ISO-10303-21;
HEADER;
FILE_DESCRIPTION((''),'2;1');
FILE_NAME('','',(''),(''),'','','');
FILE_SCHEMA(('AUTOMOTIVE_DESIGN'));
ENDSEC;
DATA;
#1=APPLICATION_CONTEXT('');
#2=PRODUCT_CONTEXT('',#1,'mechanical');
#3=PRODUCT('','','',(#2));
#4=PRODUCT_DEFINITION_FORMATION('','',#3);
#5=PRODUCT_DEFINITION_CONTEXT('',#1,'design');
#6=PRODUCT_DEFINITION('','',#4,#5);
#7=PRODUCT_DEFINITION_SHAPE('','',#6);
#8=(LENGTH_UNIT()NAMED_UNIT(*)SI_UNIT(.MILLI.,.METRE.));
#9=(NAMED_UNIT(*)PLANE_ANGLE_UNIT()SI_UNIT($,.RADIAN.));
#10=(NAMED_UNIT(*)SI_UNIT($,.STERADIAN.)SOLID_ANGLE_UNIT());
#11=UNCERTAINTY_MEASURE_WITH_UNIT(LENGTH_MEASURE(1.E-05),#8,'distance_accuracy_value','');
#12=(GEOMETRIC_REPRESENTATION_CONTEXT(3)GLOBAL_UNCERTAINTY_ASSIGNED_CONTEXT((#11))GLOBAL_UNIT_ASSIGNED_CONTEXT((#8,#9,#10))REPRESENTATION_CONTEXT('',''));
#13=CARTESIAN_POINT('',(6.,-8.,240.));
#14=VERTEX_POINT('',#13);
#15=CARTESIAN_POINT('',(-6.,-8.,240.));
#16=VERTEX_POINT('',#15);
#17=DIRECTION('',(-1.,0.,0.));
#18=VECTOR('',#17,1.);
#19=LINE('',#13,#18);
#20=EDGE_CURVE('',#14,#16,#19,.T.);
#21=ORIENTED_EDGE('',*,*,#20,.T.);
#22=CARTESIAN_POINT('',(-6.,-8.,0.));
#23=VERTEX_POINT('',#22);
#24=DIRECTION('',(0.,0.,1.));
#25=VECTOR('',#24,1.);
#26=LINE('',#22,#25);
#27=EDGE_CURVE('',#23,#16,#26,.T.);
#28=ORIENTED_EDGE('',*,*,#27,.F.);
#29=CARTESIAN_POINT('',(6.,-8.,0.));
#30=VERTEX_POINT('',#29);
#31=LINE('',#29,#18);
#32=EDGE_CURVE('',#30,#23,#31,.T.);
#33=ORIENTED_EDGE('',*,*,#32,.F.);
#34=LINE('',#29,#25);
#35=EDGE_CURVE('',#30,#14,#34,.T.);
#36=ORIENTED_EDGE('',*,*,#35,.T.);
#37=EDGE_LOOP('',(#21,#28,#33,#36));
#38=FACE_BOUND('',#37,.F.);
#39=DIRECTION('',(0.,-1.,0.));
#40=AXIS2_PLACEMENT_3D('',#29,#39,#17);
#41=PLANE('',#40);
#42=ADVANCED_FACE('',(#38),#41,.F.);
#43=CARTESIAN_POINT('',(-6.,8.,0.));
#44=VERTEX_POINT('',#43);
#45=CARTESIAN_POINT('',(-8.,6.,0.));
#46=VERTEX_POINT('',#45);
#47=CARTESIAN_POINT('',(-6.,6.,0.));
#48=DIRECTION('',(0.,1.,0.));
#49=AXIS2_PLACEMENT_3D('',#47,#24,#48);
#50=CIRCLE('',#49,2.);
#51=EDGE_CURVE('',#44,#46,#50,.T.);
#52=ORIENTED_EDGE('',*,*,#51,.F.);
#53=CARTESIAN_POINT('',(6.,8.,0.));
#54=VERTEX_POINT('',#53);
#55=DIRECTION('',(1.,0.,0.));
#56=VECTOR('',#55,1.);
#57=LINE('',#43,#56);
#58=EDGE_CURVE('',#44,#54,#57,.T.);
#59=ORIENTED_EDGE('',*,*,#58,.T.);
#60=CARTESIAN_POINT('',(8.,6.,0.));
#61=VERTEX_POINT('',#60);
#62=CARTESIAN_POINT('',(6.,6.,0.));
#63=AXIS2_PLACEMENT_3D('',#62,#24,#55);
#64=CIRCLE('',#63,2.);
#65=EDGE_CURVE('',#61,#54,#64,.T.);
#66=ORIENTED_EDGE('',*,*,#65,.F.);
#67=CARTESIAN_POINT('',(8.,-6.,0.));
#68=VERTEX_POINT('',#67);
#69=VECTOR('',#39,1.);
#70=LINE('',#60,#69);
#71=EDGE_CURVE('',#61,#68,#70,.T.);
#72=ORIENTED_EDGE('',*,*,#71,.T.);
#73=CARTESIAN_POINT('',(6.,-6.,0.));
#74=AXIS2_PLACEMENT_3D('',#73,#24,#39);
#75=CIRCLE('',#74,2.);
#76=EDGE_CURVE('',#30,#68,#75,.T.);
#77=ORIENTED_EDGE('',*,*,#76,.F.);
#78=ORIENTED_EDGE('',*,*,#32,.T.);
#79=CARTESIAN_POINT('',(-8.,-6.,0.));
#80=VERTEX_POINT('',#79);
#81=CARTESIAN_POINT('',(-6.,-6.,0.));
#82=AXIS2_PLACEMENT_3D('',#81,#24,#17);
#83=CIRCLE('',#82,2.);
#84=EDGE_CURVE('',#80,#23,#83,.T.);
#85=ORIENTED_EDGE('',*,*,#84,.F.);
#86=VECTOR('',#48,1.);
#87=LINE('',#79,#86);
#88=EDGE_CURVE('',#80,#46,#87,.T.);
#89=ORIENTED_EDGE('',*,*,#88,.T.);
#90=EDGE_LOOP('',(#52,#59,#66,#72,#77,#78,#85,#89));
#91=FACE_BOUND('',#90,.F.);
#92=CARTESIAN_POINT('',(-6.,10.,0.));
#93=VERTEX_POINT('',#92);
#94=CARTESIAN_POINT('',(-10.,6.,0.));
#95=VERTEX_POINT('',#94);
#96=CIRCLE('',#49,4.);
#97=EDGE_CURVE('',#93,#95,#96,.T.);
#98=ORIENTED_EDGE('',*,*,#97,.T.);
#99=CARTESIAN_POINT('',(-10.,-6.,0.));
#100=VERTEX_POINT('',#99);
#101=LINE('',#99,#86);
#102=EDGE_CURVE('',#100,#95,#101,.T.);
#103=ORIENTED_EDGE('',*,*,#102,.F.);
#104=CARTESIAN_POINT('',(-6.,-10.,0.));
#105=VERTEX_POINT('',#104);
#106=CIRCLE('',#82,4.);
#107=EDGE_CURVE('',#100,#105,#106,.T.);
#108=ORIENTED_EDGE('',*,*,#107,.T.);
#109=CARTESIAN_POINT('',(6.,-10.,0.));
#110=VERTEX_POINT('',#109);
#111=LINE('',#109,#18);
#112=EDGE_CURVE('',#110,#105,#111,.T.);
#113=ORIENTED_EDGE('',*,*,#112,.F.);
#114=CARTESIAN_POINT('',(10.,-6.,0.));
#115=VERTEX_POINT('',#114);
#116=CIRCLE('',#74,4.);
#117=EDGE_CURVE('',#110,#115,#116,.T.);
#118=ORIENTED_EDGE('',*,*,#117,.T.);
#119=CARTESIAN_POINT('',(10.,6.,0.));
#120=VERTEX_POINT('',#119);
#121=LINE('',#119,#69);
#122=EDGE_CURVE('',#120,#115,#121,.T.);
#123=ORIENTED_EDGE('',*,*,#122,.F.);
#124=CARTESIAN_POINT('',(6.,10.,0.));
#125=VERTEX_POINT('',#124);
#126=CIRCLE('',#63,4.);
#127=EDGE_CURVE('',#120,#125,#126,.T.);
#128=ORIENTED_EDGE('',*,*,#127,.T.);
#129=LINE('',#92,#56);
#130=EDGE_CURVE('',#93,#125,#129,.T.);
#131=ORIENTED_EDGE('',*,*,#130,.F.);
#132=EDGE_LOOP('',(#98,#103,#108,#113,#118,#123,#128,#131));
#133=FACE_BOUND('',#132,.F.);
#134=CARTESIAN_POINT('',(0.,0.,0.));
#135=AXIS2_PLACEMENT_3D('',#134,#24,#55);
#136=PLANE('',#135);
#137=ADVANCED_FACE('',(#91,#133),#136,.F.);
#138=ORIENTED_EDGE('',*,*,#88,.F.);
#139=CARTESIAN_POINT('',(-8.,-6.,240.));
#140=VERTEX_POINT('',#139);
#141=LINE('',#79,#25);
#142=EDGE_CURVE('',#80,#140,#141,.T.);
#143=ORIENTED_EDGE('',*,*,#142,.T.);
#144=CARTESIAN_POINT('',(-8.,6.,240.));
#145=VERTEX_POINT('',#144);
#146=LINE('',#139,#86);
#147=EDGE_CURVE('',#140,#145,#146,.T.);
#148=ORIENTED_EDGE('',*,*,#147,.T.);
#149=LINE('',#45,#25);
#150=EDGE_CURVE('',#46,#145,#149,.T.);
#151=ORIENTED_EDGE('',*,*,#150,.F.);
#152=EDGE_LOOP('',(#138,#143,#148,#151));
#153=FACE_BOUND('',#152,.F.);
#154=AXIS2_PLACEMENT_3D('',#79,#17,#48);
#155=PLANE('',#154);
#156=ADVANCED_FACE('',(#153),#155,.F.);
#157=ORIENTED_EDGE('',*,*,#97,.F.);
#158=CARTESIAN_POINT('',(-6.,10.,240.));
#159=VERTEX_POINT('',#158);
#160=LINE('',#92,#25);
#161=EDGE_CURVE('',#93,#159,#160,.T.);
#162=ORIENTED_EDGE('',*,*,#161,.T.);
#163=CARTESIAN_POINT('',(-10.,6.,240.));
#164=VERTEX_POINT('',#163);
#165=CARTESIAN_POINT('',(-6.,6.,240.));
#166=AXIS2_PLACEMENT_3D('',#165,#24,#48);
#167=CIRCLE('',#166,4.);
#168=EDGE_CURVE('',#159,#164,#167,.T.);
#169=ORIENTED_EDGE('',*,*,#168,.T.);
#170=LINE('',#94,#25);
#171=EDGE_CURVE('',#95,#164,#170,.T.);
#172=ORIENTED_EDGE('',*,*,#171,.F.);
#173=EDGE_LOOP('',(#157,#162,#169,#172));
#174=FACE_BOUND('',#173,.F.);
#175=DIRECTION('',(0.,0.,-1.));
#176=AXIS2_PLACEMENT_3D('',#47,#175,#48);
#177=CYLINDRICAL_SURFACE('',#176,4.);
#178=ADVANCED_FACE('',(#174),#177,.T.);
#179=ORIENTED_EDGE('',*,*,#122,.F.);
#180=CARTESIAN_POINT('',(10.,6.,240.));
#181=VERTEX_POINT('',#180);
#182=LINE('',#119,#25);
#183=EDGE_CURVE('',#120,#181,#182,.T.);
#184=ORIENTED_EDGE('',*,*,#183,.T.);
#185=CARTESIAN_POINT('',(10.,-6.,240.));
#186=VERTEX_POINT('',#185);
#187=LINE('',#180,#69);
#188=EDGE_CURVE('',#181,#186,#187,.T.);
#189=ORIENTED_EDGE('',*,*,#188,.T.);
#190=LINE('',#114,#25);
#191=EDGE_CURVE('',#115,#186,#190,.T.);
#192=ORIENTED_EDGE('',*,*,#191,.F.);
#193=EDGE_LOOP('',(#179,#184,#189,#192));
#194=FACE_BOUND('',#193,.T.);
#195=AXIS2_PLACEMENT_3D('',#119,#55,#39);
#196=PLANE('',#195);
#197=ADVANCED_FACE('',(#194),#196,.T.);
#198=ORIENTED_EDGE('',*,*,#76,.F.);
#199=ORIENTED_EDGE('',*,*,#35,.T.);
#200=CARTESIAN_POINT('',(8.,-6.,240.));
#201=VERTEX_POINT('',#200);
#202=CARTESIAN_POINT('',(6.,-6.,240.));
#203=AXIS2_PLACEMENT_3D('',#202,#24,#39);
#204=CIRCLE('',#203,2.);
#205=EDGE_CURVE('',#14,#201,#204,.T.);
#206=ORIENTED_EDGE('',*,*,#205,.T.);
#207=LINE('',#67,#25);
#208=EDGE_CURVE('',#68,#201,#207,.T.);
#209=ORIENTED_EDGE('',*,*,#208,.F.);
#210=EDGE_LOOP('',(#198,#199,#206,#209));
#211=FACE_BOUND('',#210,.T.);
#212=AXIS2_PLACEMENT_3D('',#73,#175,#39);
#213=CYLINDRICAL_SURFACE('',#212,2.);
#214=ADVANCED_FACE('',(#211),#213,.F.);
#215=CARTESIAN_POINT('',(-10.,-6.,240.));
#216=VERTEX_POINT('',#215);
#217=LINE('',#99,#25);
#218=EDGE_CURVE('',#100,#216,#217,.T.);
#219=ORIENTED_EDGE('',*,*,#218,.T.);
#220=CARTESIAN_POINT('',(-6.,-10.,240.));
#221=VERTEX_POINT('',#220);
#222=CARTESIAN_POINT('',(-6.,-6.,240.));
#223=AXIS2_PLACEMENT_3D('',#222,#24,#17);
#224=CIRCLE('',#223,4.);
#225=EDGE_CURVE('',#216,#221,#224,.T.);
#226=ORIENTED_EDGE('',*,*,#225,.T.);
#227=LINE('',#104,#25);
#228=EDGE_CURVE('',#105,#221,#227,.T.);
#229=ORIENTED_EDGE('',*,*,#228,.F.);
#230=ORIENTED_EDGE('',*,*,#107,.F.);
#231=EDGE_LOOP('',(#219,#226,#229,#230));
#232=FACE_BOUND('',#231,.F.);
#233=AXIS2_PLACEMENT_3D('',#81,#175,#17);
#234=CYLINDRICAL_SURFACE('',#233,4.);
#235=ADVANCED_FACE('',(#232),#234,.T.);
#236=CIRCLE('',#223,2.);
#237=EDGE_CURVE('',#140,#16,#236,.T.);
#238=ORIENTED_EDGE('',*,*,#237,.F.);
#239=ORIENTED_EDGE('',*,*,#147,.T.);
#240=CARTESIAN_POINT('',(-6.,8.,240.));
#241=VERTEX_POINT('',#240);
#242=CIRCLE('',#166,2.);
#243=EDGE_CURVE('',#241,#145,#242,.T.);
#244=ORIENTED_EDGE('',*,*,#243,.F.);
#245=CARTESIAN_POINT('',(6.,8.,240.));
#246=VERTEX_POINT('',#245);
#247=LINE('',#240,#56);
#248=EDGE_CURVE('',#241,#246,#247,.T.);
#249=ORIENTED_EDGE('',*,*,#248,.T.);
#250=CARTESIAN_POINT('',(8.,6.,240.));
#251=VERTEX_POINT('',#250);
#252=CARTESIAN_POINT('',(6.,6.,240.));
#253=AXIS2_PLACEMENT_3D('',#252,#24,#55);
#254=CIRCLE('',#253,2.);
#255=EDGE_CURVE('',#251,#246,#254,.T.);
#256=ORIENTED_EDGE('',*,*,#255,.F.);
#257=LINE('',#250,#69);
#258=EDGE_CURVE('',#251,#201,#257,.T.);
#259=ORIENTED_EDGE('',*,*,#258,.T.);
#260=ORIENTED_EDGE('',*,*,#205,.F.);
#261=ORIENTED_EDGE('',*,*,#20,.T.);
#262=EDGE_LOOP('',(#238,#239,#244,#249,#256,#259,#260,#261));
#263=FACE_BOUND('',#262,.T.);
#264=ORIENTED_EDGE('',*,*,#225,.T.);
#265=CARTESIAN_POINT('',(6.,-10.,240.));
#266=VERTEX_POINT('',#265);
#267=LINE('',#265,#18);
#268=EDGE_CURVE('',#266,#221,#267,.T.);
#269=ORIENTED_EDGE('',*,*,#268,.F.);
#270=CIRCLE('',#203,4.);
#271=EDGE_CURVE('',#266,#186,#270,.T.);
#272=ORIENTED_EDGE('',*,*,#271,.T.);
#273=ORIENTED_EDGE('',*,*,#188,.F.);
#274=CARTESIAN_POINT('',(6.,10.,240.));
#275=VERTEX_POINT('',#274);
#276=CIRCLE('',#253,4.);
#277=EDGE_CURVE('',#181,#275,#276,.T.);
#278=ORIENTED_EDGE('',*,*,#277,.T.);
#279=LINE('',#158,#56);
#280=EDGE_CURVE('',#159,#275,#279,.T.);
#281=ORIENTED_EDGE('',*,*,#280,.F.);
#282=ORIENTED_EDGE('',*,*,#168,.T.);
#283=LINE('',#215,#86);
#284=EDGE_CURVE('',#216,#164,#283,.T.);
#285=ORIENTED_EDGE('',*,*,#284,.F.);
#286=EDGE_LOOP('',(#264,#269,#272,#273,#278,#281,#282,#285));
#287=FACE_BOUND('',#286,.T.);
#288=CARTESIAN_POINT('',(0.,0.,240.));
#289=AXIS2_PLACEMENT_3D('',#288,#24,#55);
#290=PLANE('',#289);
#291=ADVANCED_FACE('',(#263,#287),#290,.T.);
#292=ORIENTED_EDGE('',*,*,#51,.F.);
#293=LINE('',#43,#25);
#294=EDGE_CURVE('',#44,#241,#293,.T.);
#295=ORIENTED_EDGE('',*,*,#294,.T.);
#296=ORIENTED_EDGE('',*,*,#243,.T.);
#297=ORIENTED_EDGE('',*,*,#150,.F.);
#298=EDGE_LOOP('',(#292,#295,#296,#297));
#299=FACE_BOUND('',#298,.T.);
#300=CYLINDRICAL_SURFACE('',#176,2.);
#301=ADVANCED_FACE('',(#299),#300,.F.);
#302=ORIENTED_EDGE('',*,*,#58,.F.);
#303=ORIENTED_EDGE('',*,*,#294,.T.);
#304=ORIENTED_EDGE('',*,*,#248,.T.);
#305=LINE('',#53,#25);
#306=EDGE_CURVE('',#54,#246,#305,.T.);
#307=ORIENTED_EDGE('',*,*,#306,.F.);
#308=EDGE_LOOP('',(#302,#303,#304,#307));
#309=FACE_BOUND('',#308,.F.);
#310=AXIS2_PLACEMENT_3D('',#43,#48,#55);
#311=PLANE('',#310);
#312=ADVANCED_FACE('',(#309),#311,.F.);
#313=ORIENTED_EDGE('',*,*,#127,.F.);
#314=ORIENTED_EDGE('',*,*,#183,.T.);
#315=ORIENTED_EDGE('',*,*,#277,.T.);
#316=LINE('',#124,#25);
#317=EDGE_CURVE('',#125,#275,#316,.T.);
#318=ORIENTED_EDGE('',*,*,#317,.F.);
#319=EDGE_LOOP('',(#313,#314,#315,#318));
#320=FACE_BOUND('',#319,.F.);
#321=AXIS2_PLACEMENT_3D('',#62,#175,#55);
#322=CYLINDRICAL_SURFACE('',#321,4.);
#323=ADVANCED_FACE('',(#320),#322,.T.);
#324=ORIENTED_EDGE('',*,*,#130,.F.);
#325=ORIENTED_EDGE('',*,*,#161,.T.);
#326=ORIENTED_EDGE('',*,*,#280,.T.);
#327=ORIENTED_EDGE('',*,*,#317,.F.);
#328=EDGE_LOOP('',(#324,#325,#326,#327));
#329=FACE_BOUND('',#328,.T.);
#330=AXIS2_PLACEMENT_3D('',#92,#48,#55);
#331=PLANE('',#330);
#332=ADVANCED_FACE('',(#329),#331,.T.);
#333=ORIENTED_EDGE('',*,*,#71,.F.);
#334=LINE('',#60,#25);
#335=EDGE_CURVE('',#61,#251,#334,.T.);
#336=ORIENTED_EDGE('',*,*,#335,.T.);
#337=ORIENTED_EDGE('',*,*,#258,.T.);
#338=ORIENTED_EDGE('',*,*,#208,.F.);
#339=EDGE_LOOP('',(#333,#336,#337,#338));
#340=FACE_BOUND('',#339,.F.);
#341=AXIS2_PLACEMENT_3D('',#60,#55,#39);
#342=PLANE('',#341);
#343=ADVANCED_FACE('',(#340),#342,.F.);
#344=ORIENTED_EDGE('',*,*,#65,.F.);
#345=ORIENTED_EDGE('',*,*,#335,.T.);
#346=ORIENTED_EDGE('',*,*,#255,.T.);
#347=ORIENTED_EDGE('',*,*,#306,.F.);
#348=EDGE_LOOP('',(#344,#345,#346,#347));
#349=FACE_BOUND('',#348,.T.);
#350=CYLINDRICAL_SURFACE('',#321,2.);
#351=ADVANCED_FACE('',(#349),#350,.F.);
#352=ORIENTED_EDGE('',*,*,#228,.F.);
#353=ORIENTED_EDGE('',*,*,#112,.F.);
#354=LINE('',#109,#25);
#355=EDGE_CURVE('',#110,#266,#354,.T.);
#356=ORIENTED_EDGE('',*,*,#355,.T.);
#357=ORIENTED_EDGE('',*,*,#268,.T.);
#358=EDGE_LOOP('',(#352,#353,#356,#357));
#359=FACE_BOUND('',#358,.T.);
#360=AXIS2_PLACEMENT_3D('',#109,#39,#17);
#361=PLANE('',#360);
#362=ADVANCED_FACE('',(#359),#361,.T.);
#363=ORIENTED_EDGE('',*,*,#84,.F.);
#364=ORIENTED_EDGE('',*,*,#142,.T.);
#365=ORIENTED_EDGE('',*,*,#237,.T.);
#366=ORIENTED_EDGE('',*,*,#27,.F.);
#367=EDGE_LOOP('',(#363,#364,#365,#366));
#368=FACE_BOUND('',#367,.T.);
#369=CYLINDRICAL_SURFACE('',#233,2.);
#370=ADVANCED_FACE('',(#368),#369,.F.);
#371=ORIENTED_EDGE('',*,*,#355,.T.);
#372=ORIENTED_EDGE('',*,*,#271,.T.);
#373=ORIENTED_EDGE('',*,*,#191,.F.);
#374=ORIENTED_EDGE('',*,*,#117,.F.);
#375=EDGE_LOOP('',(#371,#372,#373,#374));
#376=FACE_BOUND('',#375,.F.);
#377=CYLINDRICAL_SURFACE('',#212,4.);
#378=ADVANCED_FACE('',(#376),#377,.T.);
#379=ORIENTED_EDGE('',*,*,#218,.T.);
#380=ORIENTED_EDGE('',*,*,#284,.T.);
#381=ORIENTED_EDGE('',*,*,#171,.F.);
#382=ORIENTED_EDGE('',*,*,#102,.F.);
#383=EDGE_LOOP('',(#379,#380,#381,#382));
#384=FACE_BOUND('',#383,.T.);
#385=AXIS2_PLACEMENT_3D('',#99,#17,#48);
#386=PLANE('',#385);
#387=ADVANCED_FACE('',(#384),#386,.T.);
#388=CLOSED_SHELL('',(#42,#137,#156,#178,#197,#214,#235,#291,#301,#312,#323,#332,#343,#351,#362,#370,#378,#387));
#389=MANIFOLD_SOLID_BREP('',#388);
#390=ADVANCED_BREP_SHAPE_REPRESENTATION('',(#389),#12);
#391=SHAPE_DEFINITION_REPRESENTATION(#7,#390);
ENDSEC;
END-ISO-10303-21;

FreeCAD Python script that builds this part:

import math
import FreeCAD as App
import Part
import Sketcher
from FreeCAD import Vector

doc = App.newDocument("Part")
params = doc.addObject("Spreadsheet::Sheet", "Params")
for row, (alias, value) in enumerate([
    ("sketch1_radius", "4 mm"),
    ("sketch1_radius2", "2 mm"),
    ("pad1_length", "240 mm"),
], start=1):
    params.set(f"A{row}", alias)
    params.set(f"B{row}", "=" + value)
    params.setAlias(f"B{row}", alias)

body = doc.addObject("PartDesign::Body", "Body")

sketch1 = doc.addObject("Sketcher::SketchObject", "Sketch")
body.addObject(sketch1)
sketch1.AttachmentSupport = (doc.XY_Plane, [""])
sketch1.MapMode = "FlatFace"
sketch1.addGeometry(Part.LineSegment(Vector(-10, 6, 0), Vector(-10, -6, 0)), False)
sketch1.addGeometry(Part.ArcOfCircle(Part.Circle(Vector(-6, -6, 0), Vector(0, 0, 1), 4), math.radians(180), math.radians(270)), False)
sketch1.addGeometry(Part.LineSegment(Vector(-6, -10, 0), Vector(6, -10, 0)), False)
sketch1.addGeometry(Part.ArcOfCircle(Part.Circle(Vector(6, -6, 0), Vector(0, 0, 1), 4), math.radians(-90), math.radians(0)), False)
sketch1.addGeometry(Part.LineSegment(Vector(10, -6, 0), Vector(10, 6, 0)), False)
sketch1.addGeometry(Part.ArcOfCircle(Part.Circle(Vector(6, 6, 0), Vector(0, 0, 1), 4), math.radians(0), math.radians(90)), False)
sketch1.addGeometry(Part.LineSegment(Vector(6, 10, 0), Vector(-6, 10, 0)), False)
sketch1.addGeometry(Part.ArcOfCircle(Part.Circle(Vector(-6, 6, 0), Vector(0, 0, 1), 4), math.radians(90), math.radians(180)), False)
sketch1.addGeometry(Part.ArcOfCircle(Part.Circle(Vector(-6, 6, 0), Vector(0, 0, 1), 2), math.radians(90), math.radians(180)), False)
sketch1.addGeometry(Part.LineSegment(Vector(-6, 8, 0), Vector(6, 8, 0)), False)
sketch1.addGeometry(Part.ArcOfCircle(Part.Circle(Vector(6, 6, 0), Vector(0, 0, 1), 2), math.radians(0), math.radians(90)), False)
sketch1.addGeometry(Part.LineSegment(Vector(8, 6, 0), Vector(8, -6, 0)), False)
sketch1.addGeometry(Part.ArcOfCircle(Part.Circle(Vector(6, -6, 0), Vector(0, 0, 1), 2), math.radians(-90), math.radians(0)), False)
sketch1.addGeometry(Part.LineSegment(Vector(6, -8, 0), Vector(-6, -8, 0)), False)
sketch1.addGeometry(Part.ArcOfCircle(Part.Circle(Vector(-6, -6, 0), Vector(0, 0, 1), 2), math.radians(180), math.radians(270)), False)
sketch1.addGeometry(Part.LineSegment(Vector(-8, -6, 0), Vector(-8, 6, 0)), False)
sketch1.addConstraint(Sketcher.Constraint("Tangent", 0, 2, 1, 1))
sketch1.addConstraint(Sketcher.Constraint("Tangent", 1, 2, 2, 1))
sketch1.addConstraint(Sketcher.Constraint("Tangent", 2, 2, 3, 1))
sketch1.addConstraint(Sketcher.Constraint("Tangent", 3, 2, 4, 1))
sketch1.addConstraint(Sketcher.Constraint("Tangent", 4, 2, 5, 1))
sketch1.addConstraint(Sketcher.Constraint("Tangent", 5, 2, 6, 1))
sketch1.addConstraint(Sketcher.Constraint("Tangent", 6, 2, 7, 1))
sketch1.addConstraint(Sketcher.Constraint("Tangent", 7, 2, 0, 1))
sketch1.addConstraint(Sketcher.Constraint("Tangent", 8, 1, 9, 1))
sketch1.addConstraint(Sketcher.Constraint("Tangent", 9, 2, 10, 2))
sketch1.addConstraint(Sketcher.Constraint("Tangent", 10, 1, 11, 1))
sketch1.addConstraint(Sketcher.Constraint("Tangent", 11, 2, 12, 2))
sketch1.addConstraint(Sketcher.Constraint("Tangent", 12, 1, 13, 1))
sketch1.addConstraint(Sketcher.Constraint("Tangent", 13, 2, 14, 2))
sketch1.addConstraint(Sketcher.Constraint("Tangent", 14, 1, 15, 1))
sketch1.addConstraint(Sketcher.Constraint("Tangent", 15, 2, 8, 2))
sketch1.addConstraint(Sketcher.Constraint("Vertical", 0))
sketch1.addConstraint(Sketcher.Constraint("Horizontal", 2))
sketch1.addConstraint(Sketcher.Constraint("Vertical", 4))
sketch1.addConstraint(Sketcher.Constraint("Horizontal", 6))
sketch1.addConstraint(Sketcher.Constraint("Horizontal", 9))
sketch1.addConstraint(Sketcher.Constraint("Vertical", 11))
sketch1.addConstraint(Sketcher.Constraint("Horizontal", 13))
sketch1.addConstraint(Sketcher.Constraint("Vertical", 15))
sketch1.addConstraint(Sketcher.Constraint("Coincident", 8, 3, 7, 3))
sketch1.addConstraint(Sketcher.Constraint("Coincident", 10, 3, 5, 3))
sketch1.addConstraint(Sketcher.Constraint("Coincident", 12, 3, 3, 3))
sketch1.addConstraint(Sketcher.Constraint("Equal", 1, 3))
sketch1.addConstraint(Sketcher.Constraint("Equal", 3, 5))
sketch1.addConstraint(Sketcher.Constraint("Equal", 5, 7))
sketch1.addConstraint(Sketcher.Constraint("Equal", 12, 14))
sketch1.addConstraint(Sketcher.Constraint("Symmetric", 1, 3, 5, 3, -1, 1))
sketch1.addConstraint(Sketcher.Constraint("Equal", 13, 0))
sketch1.addConstraint(Sketcher.Constraint("Radius", 1, 4.0))
sketch1.addConstraint(Sketcher.Constraint("Radius", 8, 2.0))
sketch1.addConstraint(Sketcher.Constraint("DistanceX", 0, 2, -1, 1, 10.0))
sketch1.setExpression("Constraints[33]", "Params.sketch1_radius")
sketch1.setExpression("Constraints[34]", "Params.sketch1_radius2")
pad1 = doc.addObject("PartDesign::Pad", "Pad")
body.addObject(pad1)
pad1.Profile = sketch1
pad1.setExpression("Length", "Params.pad1_length")

doc.recompute()
